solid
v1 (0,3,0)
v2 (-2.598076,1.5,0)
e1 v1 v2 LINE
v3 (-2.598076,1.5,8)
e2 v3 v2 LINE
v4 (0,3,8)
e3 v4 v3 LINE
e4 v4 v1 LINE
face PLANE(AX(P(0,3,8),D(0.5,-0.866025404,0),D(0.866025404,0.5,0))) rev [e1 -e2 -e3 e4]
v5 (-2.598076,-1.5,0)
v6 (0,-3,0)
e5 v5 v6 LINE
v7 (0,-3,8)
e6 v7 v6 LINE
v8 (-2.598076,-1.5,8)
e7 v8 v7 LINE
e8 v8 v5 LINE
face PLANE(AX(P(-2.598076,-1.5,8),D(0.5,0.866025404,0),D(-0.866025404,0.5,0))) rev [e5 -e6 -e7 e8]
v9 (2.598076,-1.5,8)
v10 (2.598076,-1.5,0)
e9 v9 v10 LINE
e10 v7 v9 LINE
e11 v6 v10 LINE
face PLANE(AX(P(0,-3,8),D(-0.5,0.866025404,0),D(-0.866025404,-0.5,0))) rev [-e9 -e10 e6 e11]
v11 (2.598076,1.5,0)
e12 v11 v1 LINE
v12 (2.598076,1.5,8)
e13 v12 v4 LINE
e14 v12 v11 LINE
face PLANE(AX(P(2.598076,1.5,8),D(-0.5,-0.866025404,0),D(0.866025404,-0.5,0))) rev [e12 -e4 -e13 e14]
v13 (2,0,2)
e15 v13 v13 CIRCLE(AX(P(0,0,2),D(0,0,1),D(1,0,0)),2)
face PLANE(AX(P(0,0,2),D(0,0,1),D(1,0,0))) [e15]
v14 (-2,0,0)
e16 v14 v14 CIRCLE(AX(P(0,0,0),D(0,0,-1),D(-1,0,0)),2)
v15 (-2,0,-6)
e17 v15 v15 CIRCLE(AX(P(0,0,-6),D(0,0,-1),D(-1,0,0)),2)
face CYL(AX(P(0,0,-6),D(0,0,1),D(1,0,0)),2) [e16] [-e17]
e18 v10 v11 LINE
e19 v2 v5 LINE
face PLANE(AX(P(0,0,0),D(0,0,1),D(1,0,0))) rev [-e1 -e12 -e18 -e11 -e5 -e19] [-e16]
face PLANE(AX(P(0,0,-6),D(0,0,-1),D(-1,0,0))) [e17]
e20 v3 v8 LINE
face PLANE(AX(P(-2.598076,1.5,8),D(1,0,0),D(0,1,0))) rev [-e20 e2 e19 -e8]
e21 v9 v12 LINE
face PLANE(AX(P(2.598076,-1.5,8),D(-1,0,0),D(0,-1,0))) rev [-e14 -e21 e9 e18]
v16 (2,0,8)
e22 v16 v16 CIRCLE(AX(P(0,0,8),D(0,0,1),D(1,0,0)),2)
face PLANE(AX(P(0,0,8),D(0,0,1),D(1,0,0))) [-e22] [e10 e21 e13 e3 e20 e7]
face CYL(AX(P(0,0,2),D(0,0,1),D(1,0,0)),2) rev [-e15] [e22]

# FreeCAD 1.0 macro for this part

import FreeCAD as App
import Part
import Sketcher
from FreeCAD import Vector
Q = App.Units.Quantity


def add_polygon(sketch, points):
    """Adds a closed chain of lines whose ends are joined by coincident constraints."""
    first, n = sketch.GeometryCount, len(points)
    for a, b in zip(points, points[1:] + points[:1]):
        sketch.addGeometry(Part.LineSegment(App.Vector(*a, 0), App.Vector(*b, 0)), False)
    for i in range(n):
        sketch.addConstraint(Sketcher.Constraint("Coincident", first + i, 2, first + (i + 1) % n, 1))

doc = App.newDocument("Part")
params = doc.addObject("Spreadsheet::Sheet", "Params")
for row, (alias, value) in enumerate([
    ("sketch1_height", "3 mm"),
    ("sketch1_length", "3 mm"),
    ("pad1_length", "8 mm"),
    ("sketch2_diameter", "4 mm"),
    ("pocket1_length", "6 mm"),
    ("sketch3_diameter", "4 mm"),
    ("pad2_length", "6 mm"),
], start=1):
    params.set(f"A{row}", alias)
    params.set(f"B{row}", "=" + value)
    params.setAlias(f"B{row}", alias)

body = doc.addObject("PartDesign::Body", "Body")

sketch1 = doc.addObject("Sketcher::SketchObject", "Sketch")
body.addObject(sketch1)
sketch1.AttachmentSupport = (doc.XY_Plane, [""])
sketch1.MapMode = "FlatFace"
add_polygon(sketch1, [(0, 3), (-2.6, 1.5), (-2.6, -1.5), (0, -3), (2.6, -1.5), (2.6, 1.5)])
sketch1.addConstraint([
    Sketcher.Constraint("Vertical", 1),
    Sketcher.Constraint("Vertical", 4),
    Sketcher.Constraint("Symmetric", 0, 2, 3, 2, -1, 1),
    Sketcher.Constraint("Symmetric", 2, 2, 5, 2, -1, 1),
    Sketcher.Constraint("PointOnObject", 2, 2, -2),
    Sketcher.Constraint("Parallel", 2, 5),
    Sketcher.Constraint("Horizontal", 1, 2, 3, 2),
    Sketcher.Constraint("DistanceY", 1, 2, 1, 1, Q("3 mm")),
    Sketcher.Constraint("Angle", 0, Q("-150 deg")),
    Sketcher.Constraint("Distance", 0, Q("3 mm")),
])
sketch1.setExpression("Constraints[13]", "Params.sketch1_height")
sketch1.setExpression("Constraints[15]", "Params.sketch1_length")
pad1 = doc.addObject("PartDesign::Pad", "Pad")
body.addObject(pad1)
pad1.Profile = sketch1
pad1.setExpression("Length", "Params.pad1_length")

sketch2 = doc.addObject("Sketcher::SketchObject", "Sketch001")
body.addObject(sketch2)
sketch2.AttachmentSupport = (doc.XY_Plane, [""])
sketch2.MapMode = "FlatFace"
sketch2.AttachmentOffset = App.Placement(Vector(0, 0, 8), App.Rotation())
sketch2.addGeometry(Part.Circle(Vector(0, 0, 0), Vector(0, 0, 1), 2), False)
sketch2.addConstraint([
    Sketcher.Constraint("Coincident", 0, 3, -1, 1),
    Sketcher.Constraint("Diameter", 0, Q("4 mm")),
])
sketch2.setExpression("Constraints[1]", "Params.sketch2_diameter")
pocket1 = doc.addObject("PartDesign::Pocket", "Pocket")
body.addObject(pocket1)
pocket1.Profile = sketch2
pocket1.setExpression("Length", "Params.pocket1_length")

sketch3 = doc.addObject("Sketcher::SketchObject", "Sketch002")
body.addObject(sketch3)
sketch3.AttachmentSupport = (doc.XY_Plane, [""])
sketch3.MapMode = "FlatFace"
sketch3.addGeometry(Part.Circle(Vector(0, 0, 0), Vector(0, 0, 1), 2), False)
sketch3.addConstraint([
    Sketcher.Constraint("Coincident", 0, 3, -1, 1),
    Sketcher.Constraint("Diameter", 0, Q("4 mm")),
])
sketch3.setExpression("Constraints[1]", "Params.sketch3_diameter")
pad2 = doc.addObject("PartDesign::Pad", "Pad001")
body.addObject(pad2)
pad2.Profile = sketch3
pad2.setExpression("Length", "Params.pad2_length")
pad2.Reversed = True

doc.recompute()
